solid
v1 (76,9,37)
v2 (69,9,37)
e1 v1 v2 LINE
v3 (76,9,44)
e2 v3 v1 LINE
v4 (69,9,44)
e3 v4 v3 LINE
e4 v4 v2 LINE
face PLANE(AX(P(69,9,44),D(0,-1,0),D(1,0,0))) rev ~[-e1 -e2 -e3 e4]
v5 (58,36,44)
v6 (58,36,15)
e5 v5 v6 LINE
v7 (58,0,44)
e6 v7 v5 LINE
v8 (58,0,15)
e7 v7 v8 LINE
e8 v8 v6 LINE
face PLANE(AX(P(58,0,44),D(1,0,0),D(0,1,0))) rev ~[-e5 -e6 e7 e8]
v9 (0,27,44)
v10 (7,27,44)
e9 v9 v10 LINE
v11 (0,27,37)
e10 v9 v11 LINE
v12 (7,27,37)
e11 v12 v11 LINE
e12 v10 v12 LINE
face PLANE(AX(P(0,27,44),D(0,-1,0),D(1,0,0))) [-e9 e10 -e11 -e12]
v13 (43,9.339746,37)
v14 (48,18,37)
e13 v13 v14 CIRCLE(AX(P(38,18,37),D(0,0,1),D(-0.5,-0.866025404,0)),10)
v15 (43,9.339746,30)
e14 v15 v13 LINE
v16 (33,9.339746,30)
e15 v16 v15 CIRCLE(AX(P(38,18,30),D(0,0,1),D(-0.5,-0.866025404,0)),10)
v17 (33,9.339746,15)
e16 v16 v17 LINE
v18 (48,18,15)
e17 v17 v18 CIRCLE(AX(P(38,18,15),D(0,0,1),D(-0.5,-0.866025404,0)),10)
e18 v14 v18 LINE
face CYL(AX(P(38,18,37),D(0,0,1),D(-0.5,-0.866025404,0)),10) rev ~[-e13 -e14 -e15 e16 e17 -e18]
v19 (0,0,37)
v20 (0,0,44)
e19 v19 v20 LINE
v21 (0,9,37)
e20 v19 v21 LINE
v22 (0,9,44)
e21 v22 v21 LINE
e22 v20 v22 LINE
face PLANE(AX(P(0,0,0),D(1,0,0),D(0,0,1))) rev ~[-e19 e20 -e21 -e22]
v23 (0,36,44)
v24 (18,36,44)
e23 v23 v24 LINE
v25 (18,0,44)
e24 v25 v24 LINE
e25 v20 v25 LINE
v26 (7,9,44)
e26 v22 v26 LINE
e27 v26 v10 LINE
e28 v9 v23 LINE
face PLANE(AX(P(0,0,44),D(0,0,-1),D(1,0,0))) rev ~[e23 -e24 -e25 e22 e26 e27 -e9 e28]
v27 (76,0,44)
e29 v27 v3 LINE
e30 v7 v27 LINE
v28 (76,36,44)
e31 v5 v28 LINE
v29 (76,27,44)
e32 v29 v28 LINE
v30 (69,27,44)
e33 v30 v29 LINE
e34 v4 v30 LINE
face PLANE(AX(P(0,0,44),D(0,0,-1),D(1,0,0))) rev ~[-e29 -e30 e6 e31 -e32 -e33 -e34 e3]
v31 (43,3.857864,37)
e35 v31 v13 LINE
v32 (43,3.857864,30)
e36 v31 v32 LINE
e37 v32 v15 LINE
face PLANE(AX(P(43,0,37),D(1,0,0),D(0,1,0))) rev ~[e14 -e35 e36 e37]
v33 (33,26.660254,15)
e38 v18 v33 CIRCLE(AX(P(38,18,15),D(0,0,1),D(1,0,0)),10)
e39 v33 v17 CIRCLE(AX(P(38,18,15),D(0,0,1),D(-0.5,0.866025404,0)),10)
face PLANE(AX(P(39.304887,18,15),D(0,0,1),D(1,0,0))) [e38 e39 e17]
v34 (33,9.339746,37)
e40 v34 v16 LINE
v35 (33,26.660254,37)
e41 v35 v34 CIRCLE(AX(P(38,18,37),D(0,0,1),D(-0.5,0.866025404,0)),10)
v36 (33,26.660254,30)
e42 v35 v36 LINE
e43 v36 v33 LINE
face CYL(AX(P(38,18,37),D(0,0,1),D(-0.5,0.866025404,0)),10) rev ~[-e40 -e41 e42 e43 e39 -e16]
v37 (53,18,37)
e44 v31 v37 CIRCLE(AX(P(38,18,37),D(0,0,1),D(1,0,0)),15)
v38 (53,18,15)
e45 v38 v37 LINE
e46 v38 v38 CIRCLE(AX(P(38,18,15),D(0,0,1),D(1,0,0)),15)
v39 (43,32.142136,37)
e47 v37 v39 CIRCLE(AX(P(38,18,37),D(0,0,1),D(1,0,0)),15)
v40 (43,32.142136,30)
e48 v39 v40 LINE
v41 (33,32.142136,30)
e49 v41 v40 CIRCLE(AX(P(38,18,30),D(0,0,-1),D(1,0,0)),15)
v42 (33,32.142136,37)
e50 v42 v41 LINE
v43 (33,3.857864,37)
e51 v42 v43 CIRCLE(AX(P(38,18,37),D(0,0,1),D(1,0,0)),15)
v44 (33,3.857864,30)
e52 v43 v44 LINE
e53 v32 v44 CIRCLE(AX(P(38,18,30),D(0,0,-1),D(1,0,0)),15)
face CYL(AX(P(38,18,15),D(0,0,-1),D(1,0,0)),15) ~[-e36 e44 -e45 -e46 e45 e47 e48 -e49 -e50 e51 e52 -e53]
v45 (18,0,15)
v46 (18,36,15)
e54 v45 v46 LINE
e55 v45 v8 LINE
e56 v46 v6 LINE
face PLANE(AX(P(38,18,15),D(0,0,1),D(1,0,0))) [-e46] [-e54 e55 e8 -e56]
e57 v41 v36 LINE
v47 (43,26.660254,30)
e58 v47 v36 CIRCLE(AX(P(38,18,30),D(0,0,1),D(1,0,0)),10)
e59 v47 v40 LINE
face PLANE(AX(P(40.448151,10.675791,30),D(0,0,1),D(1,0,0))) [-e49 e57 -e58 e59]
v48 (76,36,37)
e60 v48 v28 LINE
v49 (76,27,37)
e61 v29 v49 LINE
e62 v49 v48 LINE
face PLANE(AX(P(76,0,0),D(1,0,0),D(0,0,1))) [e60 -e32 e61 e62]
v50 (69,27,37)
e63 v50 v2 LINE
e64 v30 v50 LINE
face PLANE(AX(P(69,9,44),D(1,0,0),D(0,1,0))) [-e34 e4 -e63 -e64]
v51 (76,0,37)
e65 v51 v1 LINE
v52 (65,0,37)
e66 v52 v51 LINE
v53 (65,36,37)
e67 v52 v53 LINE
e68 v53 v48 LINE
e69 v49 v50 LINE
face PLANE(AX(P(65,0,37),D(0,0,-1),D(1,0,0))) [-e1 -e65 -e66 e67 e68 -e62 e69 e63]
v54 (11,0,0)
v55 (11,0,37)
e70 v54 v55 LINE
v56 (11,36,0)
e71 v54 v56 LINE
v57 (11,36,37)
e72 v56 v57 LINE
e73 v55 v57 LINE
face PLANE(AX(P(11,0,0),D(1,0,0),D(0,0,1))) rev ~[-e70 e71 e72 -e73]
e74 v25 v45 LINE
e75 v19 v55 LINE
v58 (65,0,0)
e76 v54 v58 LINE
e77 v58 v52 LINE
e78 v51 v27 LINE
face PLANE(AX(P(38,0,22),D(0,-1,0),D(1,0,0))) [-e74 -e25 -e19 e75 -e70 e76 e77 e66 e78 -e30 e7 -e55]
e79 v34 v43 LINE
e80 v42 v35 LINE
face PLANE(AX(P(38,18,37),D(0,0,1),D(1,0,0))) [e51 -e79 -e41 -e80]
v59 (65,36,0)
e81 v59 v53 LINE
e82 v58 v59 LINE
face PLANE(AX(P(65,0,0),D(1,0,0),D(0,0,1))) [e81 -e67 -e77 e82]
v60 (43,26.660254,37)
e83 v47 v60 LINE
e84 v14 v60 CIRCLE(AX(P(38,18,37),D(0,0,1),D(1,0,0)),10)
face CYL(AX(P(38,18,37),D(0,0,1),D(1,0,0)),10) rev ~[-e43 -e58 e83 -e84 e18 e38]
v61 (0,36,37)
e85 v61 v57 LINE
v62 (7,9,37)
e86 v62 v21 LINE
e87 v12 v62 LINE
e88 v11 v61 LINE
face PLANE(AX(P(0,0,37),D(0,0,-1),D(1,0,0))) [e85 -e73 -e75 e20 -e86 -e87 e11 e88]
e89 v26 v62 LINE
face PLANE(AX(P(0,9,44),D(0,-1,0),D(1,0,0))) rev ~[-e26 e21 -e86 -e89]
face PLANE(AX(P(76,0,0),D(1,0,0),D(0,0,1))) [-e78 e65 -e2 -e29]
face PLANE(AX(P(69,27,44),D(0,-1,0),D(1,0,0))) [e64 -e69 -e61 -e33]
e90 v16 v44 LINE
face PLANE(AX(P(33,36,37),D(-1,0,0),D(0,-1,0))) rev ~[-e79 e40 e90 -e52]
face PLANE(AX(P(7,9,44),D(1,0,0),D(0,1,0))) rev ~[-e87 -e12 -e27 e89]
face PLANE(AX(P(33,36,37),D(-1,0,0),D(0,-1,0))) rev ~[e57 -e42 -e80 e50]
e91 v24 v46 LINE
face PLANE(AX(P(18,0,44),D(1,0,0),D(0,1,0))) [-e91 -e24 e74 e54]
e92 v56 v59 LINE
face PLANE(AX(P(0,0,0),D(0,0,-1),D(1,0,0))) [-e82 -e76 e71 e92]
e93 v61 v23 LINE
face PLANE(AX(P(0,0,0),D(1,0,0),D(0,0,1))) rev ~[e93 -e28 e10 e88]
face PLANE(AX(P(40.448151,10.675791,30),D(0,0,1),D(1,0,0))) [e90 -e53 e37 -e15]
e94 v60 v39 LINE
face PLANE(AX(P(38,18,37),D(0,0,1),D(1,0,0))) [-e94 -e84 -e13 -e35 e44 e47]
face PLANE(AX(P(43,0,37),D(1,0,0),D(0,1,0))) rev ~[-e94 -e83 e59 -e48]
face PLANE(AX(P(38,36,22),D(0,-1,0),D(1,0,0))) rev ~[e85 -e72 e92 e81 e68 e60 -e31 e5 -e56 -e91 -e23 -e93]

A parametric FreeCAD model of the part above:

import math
import FreeCAD as App
import Part
import Sketcher
Q = App.Units.Quantity

doc = App.newDocument("Part")
body = doc.addObject("PartDesign::Body", "Body")

sketch1 = doc.addObject("Sketcher::SketchObject", "Sketch")
body.addObject(sketch1)
sketch1.AttachmentSupport = (doc.XZ_Plane, [""])
sketch1.MapMode = "FlatFace"
sketch1.addGeometry([
    Part.LineSegment(App.Vector(0, 44, 0), App.Vector(0, 0, 0)),
    Part.LineSegment(App.Vector(0, 0, 0), App.Vector(76, 0, 0)),
    Part.LineSegment(App.Vector(76, 0, 0), App.Vector(76, 44, 0)),
    Part.LineSegment(App.Vector(76, 44, 0), App.Vector(0, 44, 0)),
], False)
sketch1.addConstraint([
    Sketcher.Constraint("Coincident", 0, 2, 1, 1),
    Sketcher.Constraint("Coincident", 1, 2, 2, 1),
    Sketcher.Constraint("Coincident", 2, 2, 3, 1),
    Sketcher.Constraint("Coincident", 3, 2, 0, 1),
    Sketcher.Constraint("Vertical", 0),
    Sketcher.Constraint("Horizontal", 1),
    Sketcher.Constraint("Vertical", 2),
    Sketcher.Constraint("Horizontal", 3),
    Sketcher.Constraint("Coincident", 0, 2, -1, 1),
    Sketcher.Constraint("DistanceX", 1, 1, 1, 2, Q("76 mm")),
    Sketcher.Constraint("DistanceY", 0, 2, 0, 1, Q("44 mm")),
])
pad1 = doc.addObject("PartDesign::Pad", "Pad")
body.addObject(pad1)
pad1.Profile = sketch1
pad1.Length = 36
pad1.Reversed = True

sketch2 = doc.addObject("Sketcher::SketchObject", "Sketch001")
body.addObject(sketch2)
sketch2.AttachmentSupport = (doc.XZ_Plane, [""])
sketch2.MapMode = "FlatFace"
sketch2.addGeometry([
    Part.LineSegment(App.Vector(0, 37, 0), App.Vector(0, 0, 0)),
    Part.LineSegment(App.Vector(0, 0, 0), App.Vector(11, 0, 0)),
    Part.LineSegment(App.Vector(11, 0, 0), App.Vector(11, 37, 0)),
    Part.LineSegment(App.Vector(11, 37, 0), App.Vector(0, 37, 0)),
    Part.LineSegment(App.Vector(65, 37, 0), App.Vector(65, 0, 0)),
    Part.LineSegment(App.Vector(65, 0, 0), App.Vector(76, 0, 0)),
    Part.LineSegment(App.Vector(76, 0, 0), App.Vector(76, 37, 0)),
    Part.LineSegment(App.Vector(76, 37, 0), App.Vector(65, 37, 0)),
], False)
sketch2.addConstraint([
    Sketcher.Constraint("Coincident", 0, 2, 1, 1),
    Sketcher.Constraint("Coincident", 1, 2, 2, 1),
    Sketcher.Constraint("Coincident", 2, 2, 3, 1),
    Sketcher.Constraint("Coincident", 3, 2, 0, 1),
    Sketcher.Constraint("Coincident", 4, 2, 5, 1),
    Sketcher.Constraint("Coincident", 5, 2, 6, 1),
    Sketcher.Constraint("Coincident", 6, 2, 7, 1),
    Sketcher.Constraint("Coincident", 7, 2, 4, 1),
    Sketcher.Constraint("Vertical", 0),
    Sketcher.Constraint("Horizontal", 1),
    Sketcher.Constraint("Vertical", 2),
    Sketcher.Constraint("Horizontal", 3),
    Sketcher.Constraint("Vertical", 4),
    Sketcher.Constraint("Horizontal", 5),
    Sketcher.Constraint("Vertical", 6),
    Sketcher.Constraint("Horizontal", 7),
    Sketcher.Constraint("Coincident", 0, 2, -1, 1),
    Sketcher.Constraint("PointOnObject", 4, 2, -1),
    Sketcher.Constraint("Horizontal", 3, 2, 6, 2),
    Sketcher.Constraint("Equal", 3, 5),
    Sketcher.Constraint("DistanceX", 1, 1, 1, 2, Q("11 mm")),
    Sketcher.Constraint("DistanceY", 0, 2, 0, 1, Q("37 mm")),
    Sketcher.Constraint("DistanceX", -1, 1, 4, 2, Q("65 mm")),
])
pocket1 = doc.addObject("PartDesign::Pocket", "Pocket")
body.addObject(pocket1)
pocket1.Profile = sketch2
pocket1.Length = 36

sketch3 = doc.addObject("Sketcher::SketchObject", "Sketch002")
body.addObject(sketch3)
sketch3.AttachmentSupport = (doc.XY_Plane, [""])
sketch3.MapMode = "FlatFace"
sketch3.AttachmentOffset = App.Placement(App.Vector(0, 0, 44), App.Rotation())
sketch3.addGeometry([
    Part.LineSegment(App.Vector(69, 27, 0), App.Vector(69, 9, 0)),
    Part.LineSegment(App.Vector(69, 9, 0), App.Vector(76, 9, 0)),
    Part.LineSegment(App.Vector(76, 9, 0), App.Vector(76, 27, 0)),
    Part.LineSegment(App.Vector(76, 27, 0), App.Vector(69, 27, 0)),
    Part.LineSegment(App.Vector(18, 36, 0), App.Vector(18, 0, 0)),
    Part.LineSegment(App.Vector(18, 0, 0), App.Vector(58, 0, 0)),
    Part.LineSegment(App.Vector(58, 0, 0), App.Vector(58, 36, 0)),
    Part.LineSegment(App.Vector(58, 36, 0), App.Vector(18, 36, 0)),
    Part.LineSegment(App.Vector(0, 27, 0), App.Vector(0, 9, 0)),
    Part.LineSegment(App.Vector(0, 9, 0), App.Vector(7, 9, 0)),
    Part.LineSegment(App.Vector(7, 9, 0), App.Vector(7, 27, 0)),
    Part.LineSegment(App.Vector(7, 27, 0), App.Vector(0, 27, 0)),
], False)
sketch3.addConstraint([
    Sketcher.Constraint("Coincident", 0, 2, 1, 1),
    Sketcher.Constraint("Coincident", 1, 2, 2, 1),
    Sketcher.Constraint("Coincident", 2, 2, 3, 1),
    Sketcher.Constraint("Coincident", 3, 2, 0, 1),
    Sketcher.Constraint("Coincident", 4, 2, 5, 1),
    Sketcher.Constraint("Coincident", 5, 2, 6, 1),
    Sketcher.Constraint("Coincident", 6, 2, 7, 1),
    Sketcher.Constraint("Coincident", 7, 2, 4, 1),
    Sketcher.Constraint("Coincident", 8, 2, 9, 1),
    Sketcher.Constraint("Coincident", 9, 2, 10, 1),
    Sketcher.Constraint("Coincident", 10, 2, 11, 1),
    Sketcher.Constraint("Coincident", 11, 2, 8, 1),
    Sketcher.Constraint("Vertical", 0),
    Sketcher.Constraint("Horizontal", 1),
    Sketcher.Constraint("Vertical", 2),
    Sketcher.Constraint("Horizontal", 3),
    Sketcher.Constraint("Vertical", 4),
    Sketcher.Constraint("Horizontal", 5),
    Sketcher.Constraint("Vertical", 6),
    Sketcher.Constraint("Horizontal", 7),
    Sketcher.Constraint("Vertical", 8),
    Sketcher.Constraint("Horizontal", 9),
    Sketcher.Constraint("Vertical", 10),
    Sketcher.Constraint("Horizontal", 11),
    Sketcher.Constraint("PointOnObject", 4, 2, -1),
    Sketcher.Constraint("PointOnObject", 8, 2, -2),
    Sketcher.Constraint("Horizontal", 1, 2, 8, 2),
    Sketcher.Constraint("Horizontal", 3, 2, 10, 2),
    Sketcher.Constraint("Equal", 3, 9),
    Sketcher.Constraint("DistanceX", 1, 1, 1, 2, Q("7 mm")),
    Sketcher.Constraint("DistanceX", 5, 1, 5, 2, Q("40 mm")),
    Sketcher.Constraint("DistanceY", 0, 2, 0, 1, Q("18 mm")),
    Sketcher.Constraint("DistanceY", 4, 2, 4, 1, Q("36 mm")),
    Sketcher.Constraint("DistanceX", -1, 1, 0, 2, Q("69 mm")),
    Sketcher.Constraint("DistanceY", -1, 1, 0, 2, Q("9 mm")),
    Sketcher.Constraint("DistanceX", -1, 1, 4, 2, Q("18 mm")),
])
pocket2 = doc.addObject("PartDesign::Pocket", "Pocket001")
body.addObject(pocket2)
pocket2.Profile = sketch3
pocket2.Length = 29

sketch4 = doc.addObject("Sketcher::SketchObject", "Sketch003")
body.addObject(sketch4)
sketch4.AttachmentSupport = (doc.XY_Plane, [""])
sketch4.MapMode = "FlatFace"
sketch4.AttachmentOffset = App.Placement(App.Vector(0, 0, 15), App.Rotation())
sketch4.addGeometry(Part.Circle(App.Vector(38, 18, 0), App.Vector(0, 0, 1), 15), False)
sketch4.addConstraint([
    Sketcher.Constraint("Diameter", 0, Q("30 mm")),
    Sketcher.Constraint("DistanceX", -1, 1, 0, 3, Q("38 mm")),
    Sketcher.Constraint("DistanceY", -1, 1, 0, 3, Q("18 mm")),
])
pad2 = doc.addObject("PartDesign::Pad", "Pad001")
body.addObject(pad2)
pad2.Profile = sketch4
pad2.Length = 22

sketch5 = doc.addObject("Sketcher::SketchObject", "Sketch004")
body.addObject(sketch5)
sketch5.AttachmentSupport = (doc.XY_Plane, [""])
sketch5.MapMode = "FlatFace"
sketch5.AttachmentOffset = App.Placement(App.Vector(0, 0, 37), App.Rotation())
sketch5.addGeometry([
    Part.LineSegment(App.Vector(43, 36, 0), App.Vector(33, 36, 0)),
    Part.LineSegment(App.Vector(33, 36, 0), App.Vector(33, 0, 0)),
    Part.LineSegment(App.Vector(33, 0, 0), App.Vector(43, 0, 0)),
    Part.LineSegment(App.Vector(43, 0, 0), App.Vector(43, 36, 0)),
], False)
sketch5.addConstraint([
    Sketcher.Constraint("Coincident", 0, 2, 1, 1),
    Sketcher.Constraint("Coincident", 1, 2, 2, 1),
    Sketcher.Constraint("Coincident", 2, 2, 3, 1),
    Sketcher.Constraint("Coincident", 3, 2, 0, 1),
    Sketcher.Constraint("Horizontal", 0),
    Sketcher.Constraint("Vertical", 1),
    Sketcher.Constraint("Horizontal", 2),
    Sketcher.Constraint("Vertical", 3),
    Sketcher.Constraint("PointOnObject", 1, 2, -1),
    Sketcher.Constraint("DistanceX", 0, 2, 0, 1, Q("10 mm")),
    Sketcher.Constraint("DistanceY", 1, 2, 1, 1, Q("36 mm")),
    Sketcher.Constraint("DistanceX", -1, 1, 0, 2, Q("33 mm")),
])
pocket3 = doc.addObject("PartDesign::Pocket", "Pocket002")
body.addObject(pocket3)
pocket3.Profile = sketch5
pocket3.Length = 7

sketch6 = doc.addObject("Sketcher::SketchObject", "Sketch005")
body.addObject(sketch6)
sketch6.AttachmentSupport = (doc.XY_Plane, [""])
sketch6.MapMode = "FlatFace"
sketch6.AttachmentOffset = App.Placement(App.Vector(0, 0, 37), App.Rotation())
sketch6.addGeometry([
    Part.ArcOfCircle(Part.Circle(App.Vector(38, 18, 0), App.Vector(0, 0, 1), 10), math.radians(-120), math.radians(0)),
    Part.ArcOfCircle(Part.Circle(App.Vector(38, 18, 0), App.Vector(0, 0, 1), 10), math.radians(0), math.radians(120)),
    Part.ArcOfCircle(Part.Circle(App.Vector(38, 18, 0), App.Vector(0, 0, 1), 10), math.radians(120), math.radians(240)),
], False)
sketch6.addConstraint([
    Sketcher.Constraint("Tangent", 0, 2, 1, 1),
    Sketcher.Constraint("Tangent", 1, 2, 2, 1),
    Sketcher.Constraint("Tangent", 2, 2, 0, 1),
    Sketcher.Constraint("Horizontal", 2, 3, 0, 2),
    Sketcher.Constraint("Vertical", 1, 2, 2, 2),
    Sketcher.Constraint("Radius", 0, Q("10 mm")),
    Sketcher.Constraint("DistanceX", -1, 1, 0, 3, Q("38 mm")),
    Sketcher.Constraint("DistanceY", -1, 1, 0, 3, Q("18 mm")),
    Sketcher.Constraint("DistanceX", -1, 1, 1, 2, Q("33 mm")),
])
pocket4 = doc.addObject("PartDesign::Pocket", "Pocket003")
body.addObject(pocket4)
pocket4.Profile = sketch6
pocket4.Length = 22

doc.recompute()
